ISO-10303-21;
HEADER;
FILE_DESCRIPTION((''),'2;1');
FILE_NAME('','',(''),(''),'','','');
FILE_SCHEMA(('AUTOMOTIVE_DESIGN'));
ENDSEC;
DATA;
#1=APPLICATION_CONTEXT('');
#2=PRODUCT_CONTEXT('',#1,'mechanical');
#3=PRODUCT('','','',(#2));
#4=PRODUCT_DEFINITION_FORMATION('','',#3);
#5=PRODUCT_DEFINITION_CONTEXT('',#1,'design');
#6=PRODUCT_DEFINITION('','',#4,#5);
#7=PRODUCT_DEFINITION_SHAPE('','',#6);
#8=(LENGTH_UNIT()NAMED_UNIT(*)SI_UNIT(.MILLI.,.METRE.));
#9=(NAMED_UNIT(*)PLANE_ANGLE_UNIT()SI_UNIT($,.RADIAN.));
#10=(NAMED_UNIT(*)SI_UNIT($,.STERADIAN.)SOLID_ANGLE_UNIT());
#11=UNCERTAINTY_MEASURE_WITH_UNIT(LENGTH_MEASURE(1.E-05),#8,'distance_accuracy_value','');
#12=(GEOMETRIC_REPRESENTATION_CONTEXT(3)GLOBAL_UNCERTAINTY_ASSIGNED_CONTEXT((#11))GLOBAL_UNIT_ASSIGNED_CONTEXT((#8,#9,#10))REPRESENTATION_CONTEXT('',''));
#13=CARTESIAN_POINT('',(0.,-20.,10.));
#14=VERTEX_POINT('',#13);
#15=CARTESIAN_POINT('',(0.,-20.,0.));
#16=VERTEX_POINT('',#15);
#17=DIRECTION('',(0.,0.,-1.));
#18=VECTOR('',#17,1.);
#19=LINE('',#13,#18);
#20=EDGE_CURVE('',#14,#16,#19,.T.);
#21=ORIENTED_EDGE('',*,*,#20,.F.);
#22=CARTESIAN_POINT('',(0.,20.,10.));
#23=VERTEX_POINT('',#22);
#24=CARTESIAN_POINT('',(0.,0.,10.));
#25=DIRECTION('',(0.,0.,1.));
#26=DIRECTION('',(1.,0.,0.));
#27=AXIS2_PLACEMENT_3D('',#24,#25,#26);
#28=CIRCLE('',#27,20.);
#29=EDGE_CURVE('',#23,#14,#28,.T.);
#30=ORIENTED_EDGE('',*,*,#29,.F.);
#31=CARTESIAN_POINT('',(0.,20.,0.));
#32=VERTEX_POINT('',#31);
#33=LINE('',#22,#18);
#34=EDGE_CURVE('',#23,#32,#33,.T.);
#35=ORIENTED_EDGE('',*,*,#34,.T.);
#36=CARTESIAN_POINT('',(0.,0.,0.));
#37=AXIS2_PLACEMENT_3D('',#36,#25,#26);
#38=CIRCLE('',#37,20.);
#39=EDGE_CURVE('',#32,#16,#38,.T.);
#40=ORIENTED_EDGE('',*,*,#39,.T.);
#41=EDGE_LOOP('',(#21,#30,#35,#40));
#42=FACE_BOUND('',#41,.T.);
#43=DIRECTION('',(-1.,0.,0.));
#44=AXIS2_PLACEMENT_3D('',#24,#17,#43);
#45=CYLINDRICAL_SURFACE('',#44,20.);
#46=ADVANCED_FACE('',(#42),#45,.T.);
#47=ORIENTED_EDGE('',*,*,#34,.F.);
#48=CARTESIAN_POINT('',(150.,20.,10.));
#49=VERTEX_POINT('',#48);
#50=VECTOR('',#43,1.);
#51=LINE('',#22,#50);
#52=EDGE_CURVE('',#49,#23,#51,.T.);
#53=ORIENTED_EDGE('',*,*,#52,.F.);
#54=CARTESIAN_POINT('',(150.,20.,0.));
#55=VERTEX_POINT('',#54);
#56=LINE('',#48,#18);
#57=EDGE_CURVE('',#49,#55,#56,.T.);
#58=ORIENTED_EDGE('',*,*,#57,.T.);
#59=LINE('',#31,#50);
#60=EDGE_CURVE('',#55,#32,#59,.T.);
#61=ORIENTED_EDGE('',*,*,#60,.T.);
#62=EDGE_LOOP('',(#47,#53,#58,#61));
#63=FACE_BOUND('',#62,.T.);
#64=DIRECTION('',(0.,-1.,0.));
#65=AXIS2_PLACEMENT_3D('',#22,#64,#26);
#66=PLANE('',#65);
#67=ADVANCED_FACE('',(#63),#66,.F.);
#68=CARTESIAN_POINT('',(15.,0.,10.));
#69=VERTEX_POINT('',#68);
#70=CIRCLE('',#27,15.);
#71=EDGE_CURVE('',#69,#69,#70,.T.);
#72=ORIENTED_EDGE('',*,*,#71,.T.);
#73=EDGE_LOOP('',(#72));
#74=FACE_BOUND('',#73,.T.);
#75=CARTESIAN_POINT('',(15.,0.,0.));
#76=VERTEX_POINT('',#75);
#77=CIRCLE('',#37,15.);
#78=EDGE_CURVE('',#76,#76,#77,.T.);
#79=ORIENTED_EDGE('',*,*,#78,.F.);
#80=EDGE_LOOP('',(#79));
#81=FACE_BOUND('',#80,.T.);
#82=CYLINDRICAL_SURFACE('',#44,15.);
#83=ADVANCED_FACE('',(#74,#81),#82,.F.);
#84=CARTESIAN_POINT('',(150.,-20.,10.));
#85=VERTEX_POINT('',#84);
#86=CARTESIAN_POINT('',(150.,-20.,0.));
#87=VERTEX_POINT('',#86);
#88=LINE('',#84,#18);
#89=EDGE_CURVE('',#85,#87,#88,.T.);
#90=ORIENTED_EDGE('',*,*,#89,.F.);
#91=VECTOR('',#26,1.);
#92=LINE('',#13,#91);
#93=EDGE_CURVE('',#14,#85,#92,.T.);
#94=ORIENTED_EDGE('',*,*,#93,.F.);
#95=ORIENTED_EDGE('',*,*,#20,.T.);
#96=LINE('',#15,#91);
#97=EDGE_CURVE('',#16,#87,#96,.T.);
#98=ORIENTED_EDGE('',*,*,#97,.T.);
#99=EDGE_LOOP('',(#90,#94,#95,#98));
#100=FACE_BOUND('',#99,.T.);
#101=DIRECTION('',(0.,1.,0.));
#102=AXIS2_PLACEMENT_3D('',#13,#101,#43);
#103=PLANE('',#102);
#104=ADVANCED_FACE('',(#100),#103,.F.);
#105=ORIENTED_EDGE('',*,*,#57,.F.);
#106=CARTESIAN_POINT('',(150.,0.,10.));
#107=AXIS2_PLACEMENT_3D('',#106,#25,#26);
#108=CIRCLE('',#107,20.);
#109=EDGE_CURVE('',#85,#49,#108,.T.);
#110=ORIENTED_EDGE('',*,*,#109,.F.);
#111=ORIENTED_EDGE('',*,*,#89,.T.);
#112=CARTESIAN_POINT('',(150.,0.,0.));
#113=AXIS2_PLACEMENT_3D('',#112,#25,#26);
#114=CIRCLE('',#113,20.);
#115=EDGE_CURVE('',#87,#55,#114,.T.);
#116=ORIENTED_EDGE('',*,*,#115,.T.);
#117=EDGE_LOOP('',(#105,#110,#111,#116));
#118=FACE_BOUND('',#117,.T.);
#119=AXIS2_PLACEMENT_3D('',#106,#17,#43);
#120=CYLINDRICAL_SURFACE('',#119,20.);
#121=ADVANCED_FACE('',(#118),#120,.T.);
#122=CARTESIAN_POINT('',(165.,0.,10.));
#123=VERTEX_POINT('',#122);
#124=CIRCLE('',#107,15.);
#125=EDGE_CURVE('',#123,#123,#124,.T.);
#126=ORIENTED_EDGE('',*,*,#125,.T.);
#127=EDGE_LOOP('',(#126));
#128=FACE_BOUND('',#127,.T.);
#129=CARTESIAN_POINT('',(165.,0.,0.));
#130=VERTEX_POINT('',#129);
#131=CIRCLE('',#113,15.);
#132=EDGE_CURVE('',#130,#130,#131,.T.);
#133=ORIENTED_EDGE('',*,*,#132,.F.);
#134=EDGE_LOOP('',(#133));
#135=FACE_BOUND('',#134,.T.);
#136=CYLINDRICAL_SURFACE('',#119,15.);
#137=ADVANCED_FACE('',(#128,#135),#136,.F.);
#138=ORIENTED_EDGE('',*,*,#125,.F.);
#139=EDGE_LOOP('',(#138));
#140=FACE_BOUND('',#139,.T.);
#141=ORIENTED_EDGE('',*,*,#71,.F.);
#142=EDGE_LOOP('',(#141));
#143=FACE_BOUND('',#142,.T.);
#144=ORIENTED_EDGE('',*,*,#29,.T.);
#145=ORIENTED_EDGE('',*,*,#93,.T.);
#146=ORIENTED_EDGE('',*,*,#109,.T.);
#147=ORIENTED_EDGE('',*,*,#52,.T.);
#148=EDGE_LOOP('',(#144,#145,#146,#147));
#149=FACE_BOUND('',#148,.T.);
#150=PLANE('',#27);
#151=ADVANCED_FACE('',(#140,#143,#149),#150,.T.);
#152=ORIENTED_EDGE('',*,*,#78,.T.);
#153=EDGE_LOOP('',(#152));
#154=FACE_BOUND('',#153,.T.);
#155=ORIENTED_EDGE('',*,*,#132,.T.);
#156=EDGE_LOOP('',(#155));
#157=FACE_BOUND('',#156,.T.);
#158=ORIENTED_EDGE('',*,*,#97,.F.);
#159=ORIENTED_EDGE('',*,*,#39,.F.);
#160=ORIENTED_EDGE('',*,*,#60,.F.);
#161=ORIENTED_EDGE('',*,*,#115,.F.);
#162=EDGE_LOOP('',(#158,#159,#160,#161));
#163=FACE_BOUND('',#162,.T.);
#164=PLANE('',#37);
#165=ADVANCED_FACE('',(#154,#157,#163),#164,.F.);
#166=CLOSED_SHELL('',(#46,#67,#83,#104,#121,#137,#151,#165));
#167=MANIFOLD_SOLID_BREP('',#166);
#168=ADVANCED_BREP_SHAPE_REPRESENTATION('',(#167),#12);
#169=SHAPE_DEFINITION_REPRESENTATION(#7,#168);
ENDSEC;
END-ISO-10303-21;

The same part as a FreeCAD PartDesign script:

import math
import FreeCAD as App
import Part
import Sketcher

doc = App.newDocument("Part")
body = doc.addObject("PartDesign::Body", "Body")

sketch1 = body.newObject("Sketcher::SketchObject", "Sketch")
sketch1.AttachmentSupport = (doc.getObject("XY_Plane"), [""])
sketch1.MapMode = "FlatFace"
sketch1.addGeometry([
    Part.LineSegment(App.Vector(150, 20, 0), App.Vector(0, 20, 0)),
    Part.ArcOfCircle(Part.Circle(App.Vector(0, 0, 0), App.Vector(0, 0, 1), 20), math.radians(90), math.radians(270)),
    Part.LineSegment(App.Vector(0, -20, 0), App.Vector(150, -20, 0)),
    Part.ArcOfCircle(Part.Circle(App.Vector(150, 0, 0), App.Vector(0, 0, 1), 20), math.radians(-90), math.radians(90)),
    Part.Circle(App.Vector(150, 0, 0), App.Vector(0, 0, 1), 15),
    Part.Circle(App.Vector(0, 0, 0), App.Vector(0, 0, 1), 15),
], False)
sketch1.addConstraint([
    Sketcher.Constraint("Tangent", 0, 2, 1, 1),
    Sketcher.Constraint("Tangent", 1, 2, 2, 1),
    Sketcher.Constraint("Tangent", 2, 2, 3, 1),
    Sketcher.Constraint("Tangent", 3, 2, 0, 1),
    Sketcher.Constraint("Horizontal", 0),
    Sketcher.Constraint("Horizontal", 2),
    Sketcher.Constraint("Coincident", 1, 3, -1, 1),
    Sketcher.Constraint("Coincident", 5, 3, -1, 1),
    Sketcher.Constraint("Coincident", 4, 3, 3, 3),
    Sketcher.Constraint("Equal", 4, 5),
    Sketcher.Constraint("Diameter", 4, 30.0),
    Sketcher.Constraint("Radius", 1, 20.0),
    Sketcher.Constraint("DistanceX", 0, 2, 0, 1, 150.0),
])
pad1 = body.newObject("PartDesign::Pad", "Pad")
pad1.Profile = sketch1
pad1.Length = 10

doc.recompute()
